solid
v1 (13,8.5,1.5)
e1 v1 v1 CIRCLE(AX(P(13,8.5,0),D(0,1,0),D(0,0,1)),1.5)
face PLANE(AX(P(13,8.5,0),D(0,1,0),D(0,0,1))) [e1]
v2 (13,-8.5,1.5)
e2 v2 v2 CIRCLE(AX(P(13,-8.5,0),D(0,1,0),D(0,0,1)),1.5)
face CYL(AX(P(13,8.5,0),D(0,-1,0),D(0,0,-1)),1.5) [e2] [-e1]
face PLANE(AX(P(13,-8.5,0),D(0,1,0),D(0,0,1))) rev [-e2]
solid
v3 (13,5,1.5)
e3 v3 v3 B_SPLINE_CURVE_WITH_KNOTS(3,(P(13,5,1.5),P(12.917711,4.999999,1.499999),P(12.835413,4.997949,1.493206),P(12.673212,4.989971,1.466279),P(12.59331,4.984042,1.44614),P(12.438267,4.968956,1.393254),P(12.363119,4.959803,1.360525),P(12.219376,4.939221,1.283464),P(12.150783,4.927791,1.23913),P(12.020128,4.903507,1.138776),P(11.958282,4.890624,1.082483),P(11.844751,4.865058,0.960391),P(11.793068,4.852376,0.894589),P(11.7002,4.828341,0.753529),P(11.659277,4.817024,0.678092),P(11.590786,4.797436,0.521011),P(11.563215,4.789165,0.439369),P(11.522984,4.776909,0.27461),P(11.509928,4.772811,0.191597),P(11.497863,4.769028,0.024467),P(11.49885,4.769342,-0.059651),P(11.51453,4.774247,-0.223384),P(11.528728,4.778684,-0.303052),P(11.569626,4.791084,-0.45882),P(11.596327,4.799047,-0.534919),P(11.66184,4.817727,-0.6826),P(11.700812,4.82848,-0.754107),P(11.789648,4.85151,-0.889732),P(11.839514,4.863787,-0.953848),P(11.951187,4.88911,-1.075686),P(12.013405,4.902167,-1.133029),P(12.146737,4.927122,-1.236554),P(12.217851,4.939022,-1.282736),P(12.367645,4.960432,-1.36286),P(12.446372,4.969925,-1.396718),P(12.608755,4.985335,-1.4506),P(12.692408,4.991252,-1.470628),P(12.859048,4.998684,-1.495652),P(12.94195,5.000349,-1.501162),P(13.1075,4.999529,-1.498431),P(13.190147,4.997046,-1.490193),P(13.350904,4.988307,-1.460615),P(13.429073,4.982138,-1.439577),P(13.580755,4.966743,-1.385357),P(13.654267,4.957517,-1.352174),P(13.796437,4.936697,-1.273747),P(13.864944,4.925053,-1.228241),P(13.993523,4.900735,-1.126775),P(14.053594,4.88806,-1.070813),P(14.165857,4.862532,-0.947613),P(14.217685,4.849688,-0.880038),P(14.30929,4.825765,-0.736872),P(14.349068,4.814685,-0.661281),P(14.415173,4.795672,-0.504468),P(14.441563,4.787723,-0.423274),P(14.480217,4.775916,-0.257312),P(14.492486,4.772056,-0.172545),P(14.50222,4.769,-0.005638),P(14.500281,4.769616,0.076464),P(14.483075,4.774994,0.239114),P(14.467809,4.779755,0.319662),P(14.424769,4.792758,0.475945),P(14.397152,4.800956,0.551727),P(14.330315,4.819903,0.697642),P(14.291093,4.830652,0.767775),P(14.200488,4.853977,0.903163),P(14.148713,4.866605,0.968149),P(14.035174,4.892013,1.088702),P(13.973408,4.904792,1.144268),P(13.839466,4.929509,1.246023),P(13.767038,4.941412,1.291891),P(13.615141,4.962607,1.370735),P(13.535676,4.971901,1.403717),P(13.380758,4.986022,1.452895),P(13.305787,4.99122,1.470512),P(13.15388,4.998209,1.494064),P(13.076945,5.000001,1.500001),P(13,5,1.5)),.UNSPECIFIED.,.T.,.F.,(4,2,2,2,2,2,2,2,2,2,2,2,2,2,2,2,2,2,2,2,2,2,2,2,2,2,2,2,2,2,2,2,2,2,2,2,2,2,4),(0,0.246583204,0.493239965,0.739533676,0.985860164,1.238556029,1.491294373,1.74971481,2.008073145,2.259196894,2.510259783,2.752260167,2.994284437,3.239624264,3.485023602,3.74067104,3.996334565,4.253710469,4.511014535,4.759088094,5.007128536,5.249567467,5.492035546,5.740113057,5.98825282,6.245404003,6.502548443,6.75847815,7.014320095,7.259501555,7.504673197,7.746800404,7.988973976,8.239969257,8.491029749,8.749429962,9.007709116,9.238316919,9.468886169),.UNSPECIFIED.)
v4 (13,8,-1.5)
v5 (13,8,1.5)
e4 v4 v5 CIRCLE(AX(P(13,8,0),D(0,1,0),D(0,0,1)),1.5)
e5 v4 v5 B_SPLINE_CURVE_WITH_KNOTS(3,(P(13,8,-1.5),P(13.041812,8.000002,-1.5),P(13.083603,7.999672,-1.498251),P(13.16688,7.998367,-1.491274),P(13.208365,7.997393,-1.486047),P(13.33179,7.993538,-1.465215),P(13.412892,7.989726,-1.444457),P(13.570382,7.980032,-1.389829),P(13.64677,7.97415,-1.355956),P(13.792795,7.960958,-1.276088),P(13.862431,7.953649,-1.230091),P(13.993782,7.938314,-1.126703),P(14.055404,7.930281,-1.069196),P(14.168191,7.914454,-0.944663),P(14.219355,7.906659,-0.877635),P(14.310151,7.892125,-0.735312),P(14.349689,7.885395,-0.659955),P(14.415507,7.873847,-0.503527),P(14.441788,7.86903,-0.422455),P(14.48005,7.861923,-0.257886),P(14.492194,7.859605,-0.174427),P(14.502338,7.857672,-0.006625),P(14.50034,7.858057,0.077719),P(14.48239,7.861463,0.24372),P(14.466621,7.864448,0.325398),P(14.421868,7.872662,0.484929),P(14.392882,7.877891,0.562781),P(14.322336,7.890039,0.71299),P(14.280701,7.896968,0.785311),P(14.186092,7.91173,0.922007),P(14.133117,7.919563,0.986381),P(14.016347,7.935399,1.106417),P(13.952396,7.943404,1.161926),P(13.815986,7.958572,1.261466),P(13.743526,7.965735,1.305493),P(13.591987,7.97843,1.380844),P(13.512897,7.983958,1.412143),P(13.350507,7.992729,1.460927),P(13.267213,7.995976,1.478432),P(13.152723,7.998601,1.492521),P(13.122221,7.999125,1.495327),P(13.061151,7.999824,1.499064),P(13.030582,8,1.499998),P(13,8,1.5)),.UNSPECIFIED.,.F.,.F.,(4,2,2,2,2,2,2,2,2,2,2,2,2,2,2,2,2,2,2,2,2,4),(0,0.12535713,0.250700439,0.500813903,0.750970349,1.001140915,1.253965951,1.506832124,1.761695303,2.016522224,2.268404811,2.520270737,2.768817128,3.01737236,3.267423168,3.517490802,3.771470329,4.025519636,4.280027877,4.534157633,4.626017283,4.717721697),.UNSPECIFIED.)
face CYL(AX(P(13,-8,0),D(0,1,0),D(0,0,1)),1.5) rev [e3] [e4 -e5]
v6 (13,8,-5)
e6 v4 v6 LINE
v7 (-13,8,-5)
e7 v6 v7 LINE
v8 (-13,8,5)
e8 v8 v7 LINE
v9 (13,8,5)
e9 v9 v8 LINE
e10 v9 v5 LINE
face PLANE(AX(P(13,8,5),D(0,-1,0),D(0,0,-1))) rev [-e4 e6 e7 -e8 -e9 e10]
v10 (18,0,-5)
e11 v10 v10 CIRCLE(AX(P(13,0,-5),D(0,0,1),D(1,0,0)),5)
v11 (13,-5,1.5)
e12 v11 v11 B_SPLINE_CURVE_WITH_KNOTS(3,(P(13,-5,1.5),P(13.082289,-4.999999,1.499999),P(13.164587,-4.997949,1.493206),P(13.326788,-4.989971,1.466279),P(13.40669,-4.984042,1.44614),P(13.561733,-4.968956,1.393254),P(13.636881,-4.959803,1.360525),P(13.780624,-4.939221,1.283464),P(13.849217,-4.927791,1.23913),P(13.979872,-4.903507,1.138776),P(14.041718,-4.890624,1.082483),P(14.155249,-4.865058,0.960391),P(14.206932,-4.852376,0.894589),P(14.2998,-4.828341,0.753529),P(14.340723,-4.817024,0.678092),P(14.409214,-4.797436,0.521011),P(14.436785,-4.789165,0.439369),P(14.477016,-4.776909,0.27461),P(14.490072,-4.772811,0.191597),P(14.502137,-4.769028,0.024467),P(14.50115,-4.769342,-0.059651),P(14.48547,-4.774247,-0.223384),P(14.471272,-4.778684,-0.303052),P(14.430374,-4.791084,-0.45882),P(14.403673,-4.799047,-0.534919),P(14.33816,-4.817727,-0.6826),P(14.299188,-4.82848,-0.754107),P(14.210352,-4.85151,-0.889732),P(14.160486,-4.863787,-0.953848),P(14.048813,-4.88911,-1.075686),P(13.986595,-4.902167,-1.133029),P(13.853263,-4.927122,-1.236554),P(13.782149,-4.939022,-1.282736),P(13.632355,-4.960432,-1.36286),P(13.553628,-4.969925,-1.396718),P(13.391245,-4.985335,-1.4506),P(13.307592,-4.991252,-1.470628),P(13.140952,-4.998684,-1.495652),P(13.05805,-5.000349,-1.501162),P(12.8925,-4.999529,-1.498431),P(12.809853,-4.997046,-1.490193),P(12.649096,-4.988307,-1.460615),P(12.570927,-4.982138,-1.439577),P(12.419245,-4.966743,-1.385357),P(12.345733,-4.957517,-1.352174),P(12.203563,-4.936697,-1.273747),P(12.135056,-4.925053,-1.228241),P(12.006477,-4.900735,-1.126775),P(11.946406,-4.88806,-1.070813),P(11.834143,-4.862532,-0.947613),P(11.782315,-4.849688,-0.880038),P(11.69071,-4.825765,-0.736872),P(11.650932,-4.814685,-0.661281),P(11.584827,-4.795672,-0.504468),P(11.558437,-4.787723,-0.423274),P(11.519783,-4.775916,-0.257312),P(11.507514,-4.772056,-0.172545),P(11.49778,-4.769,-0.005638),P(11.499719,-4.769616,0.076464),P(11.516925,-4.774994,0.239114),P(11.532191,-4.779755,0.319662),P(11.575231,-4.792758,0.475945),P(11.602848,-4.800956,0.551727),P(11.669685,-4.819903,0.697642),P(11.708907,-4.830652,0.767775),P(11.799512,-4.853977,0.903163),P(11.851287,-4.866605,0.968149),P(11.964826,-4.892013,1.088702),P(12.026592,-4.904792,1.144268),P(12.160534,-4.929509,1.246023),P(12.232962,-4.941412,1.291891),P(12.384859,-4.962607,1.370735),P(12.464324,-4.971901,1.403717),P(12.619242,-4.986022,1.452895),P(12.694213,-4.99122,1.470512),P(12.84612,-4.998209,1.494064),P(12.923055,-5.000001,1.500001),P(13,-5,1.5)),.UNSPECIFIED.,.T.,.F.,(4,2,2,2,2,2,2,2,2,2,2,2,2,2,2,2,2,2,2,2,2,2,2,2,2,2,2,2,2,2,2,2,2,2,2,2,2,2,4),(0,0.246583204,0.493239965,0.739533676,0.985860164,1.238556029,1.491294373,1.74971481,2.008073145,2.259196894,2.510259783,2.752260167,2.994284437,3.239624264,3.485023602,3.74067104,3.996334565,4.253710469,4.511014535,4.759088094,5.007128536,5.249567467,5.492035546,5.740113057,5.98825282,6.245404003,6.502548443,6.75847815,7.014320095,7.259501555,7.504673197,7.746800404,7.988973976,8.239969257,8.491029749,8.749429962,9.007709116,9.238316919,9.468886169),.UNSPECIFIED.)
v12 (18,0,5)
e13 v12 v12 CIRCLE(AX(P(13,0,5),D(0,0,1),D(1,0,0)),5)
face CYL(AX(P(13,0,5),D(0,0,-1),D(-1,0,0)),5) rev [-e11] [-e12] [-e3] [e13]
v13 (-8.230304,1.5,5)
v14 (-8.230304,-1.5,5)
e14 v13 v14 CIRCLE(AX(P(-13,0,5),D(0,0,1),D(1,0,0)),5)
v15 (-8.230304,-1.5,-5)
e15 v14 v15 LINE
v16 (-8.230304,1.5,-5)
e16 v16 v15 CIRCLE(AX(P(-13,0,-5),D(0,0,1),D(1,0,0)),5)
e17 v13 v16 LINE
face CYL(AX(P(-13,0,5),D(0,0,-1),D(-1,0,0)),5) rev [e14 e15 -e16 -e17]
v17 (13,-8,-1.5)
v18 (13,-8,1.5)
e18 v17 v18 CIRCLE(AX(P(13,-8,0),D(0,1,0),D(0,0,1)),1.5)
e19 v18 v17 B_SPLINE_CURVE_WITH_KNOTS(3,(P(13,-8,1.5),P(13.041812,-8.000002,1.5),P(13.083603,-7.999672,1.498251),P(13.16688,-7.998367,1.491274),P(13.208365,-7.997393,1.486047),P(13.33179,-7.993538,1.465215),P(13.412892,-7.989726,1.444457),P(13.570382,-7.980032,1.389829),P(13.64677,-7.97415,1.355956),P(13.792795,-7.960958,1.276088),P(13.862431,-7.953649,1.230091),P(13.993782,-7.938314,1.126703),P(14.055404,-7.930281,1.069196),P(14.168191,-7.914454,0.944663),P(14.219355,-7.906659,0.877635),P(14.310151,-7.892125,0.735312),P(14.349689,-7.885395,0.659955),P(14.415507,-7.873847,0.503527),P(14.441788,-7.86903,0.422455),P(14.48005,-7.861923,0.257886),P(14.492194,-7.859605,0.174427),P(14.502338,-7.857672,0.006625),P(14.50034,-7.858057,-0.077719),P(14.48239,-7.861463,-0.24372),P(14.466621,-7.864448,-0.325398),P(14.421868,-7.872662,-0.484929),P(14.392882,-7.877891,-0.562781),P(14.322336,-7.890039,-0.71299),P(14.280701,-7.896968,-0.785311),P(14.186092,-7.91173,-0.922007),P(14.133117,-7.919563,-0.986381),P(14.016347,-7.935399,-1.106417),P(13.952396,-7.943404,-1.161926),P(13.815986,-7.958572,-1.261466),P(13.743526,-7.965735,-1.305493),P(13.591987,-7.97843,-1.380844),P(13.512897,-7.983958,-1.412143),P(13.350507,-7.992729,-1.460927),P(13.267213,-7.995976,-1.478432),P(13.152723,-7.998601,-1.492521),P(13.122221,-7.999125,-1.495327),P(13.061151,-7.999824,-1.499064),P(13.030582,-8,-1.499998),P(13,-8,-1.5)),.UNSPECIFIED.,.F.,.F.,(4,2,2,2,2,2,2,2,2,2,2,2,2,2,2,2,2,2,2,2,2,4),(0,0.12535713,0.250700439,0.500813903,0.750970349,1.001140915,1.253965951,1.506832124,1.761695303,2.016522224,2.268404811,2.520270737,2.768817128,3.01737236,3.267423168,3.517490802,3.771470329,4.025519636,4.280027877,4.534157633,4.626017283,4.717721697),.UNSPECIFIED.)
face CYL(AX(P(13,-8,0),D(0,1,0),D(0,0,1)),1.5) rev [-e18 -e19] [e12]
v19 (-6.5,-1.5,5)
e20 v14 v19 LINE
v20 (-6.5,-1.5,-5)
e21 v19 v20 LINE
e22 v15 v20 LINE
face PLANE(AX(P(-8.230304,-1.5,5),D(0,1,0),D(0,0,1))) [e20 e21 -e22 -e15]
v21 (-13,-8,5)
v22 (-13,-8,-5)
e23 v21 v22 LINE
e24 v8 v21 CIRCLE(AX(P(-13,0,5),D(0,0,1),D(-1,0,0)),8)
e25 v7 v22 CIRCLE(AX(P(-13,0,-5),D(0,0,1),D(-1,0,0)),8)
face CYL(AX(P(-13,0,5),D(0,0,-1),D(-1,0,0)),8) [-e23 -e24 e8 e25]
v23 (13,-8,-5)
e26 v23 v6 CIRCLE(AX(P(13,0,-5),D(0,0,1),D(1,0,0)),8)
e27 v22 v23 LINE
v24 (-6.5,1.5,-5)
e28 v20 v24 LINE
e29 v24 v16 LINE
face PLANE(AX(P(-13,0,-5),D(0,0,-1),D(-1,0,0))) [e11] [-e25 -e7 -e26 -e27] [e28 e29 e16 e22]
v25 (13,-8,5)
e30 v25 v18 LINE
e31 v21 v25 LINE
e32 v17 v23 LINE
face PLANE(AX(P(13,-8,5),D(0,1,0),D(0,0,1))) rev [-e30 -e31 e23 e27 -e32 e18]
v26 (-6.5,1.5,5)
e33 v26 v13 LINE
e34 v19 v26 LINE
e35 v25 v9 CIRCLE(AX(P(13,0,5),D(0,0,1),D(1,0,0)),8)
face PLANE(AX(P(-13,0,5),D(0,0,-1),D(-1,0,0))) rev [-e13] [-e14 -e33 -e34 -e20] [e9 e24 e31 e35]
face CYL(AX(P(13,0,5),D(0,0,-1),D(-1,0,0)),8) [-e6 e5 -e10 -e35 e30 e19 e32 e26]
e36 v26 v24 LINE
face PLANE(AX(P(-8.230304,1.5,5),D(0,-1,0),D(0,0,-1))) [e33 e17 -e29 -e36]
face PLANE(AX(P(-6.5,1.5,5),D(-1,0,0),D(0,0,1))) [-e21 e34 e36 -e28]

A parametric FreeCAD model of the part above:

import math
import FreeCAD as App
import Part
import Sketcher

V = App.Vector

doc = App.newDocument("Part")
body = doc.addObject("PartDesign::Body", "Body")

sketch1 = doc.addObject("Sketcher::SketchObject", "Sketch")
body.addObject(sketch1)
sketch1.AttachmentSupport = (doc.XY_Plane, [""])
sketch1.MapMode = "FlatFace"
sketch1.addGeometry([
    Part.LineSegment(V(13, 8, 0), V(-13, 8, 0)),
    Part.ArcOfCircle(Part.Circle(V(-13, 0, 0), V(0, 0, 1), 8), math.radians(90), math.radians(270)),
    Part.LineSegment(V(-13, -8, 0), V(13, -8, 0)),
    Part.ArcOfCircle(Part.Circle(V(13, 0, 0), V(0, 0, 1), 8), math.radians(-90), math.radians(90)),
    Part.ArcOfCircle(Part.Circle(V(-13, 0, 0), V(0, 0, 1), 5), math.radians(17), math.radians(343)),
    Part.LineSegment(V(-8.2, 1.5, 0), V(-6.5, 1.5, 0)),
    Part.LineSegment(V(-6.5, 1.5, 0), V(-6.5, -1.5, 0)),
    Part.LineSegment(V(-6.5, -1.5, 0), V(-8.2, -1.5, 0)),
    Part.Circle(V(13, 0, 0), V(0, 0, 1), 5),
], False)
sketch1.addConstraint([
    Sketcher.Constraint("Tangent", 0, 2, 1, 1),
    Sketcher.Constraint("Tangent", 1, 2, 2, 1),
    Sketcher.Constraint("Tangent", 2, 2, 3, 1),
    Sketcher.Constraint("Tangent", 3, 2, 0, 1),
    Sketcher.Constraint("Coincident", 4, 1, 5, 1),
    Sketcher.Constraint("Coincident", 5, 2, 6, 1),
    Sketcher.Constraint("Coincident", 6, 2, 7, 1),
    Sketcher.Constraint("Coincident", 7, 2, 4, 2),
    Sketcher.Constraint("Horizontal", 0),
    Sketcher.Constraint("Horizontal", 2),
    Sketcher.Constraint("Horizontal", 5),
    Sketcher.Constraint("Vertical", 6),
    Sketcher.Constraint("Horizontal", 7),
    Sketcher.Constraint("Coincident", 4, 3, 1, 3),
    Sketcher.Constraint("Coincident", 8, 3, 3, 3),
    Sketcher.Constraint("Equal", 4, 8),
    Sketcher.Constraint("Symmetric", 1, 3, 3, 3, -1, 1),
    Sketcher.Constraint("Vertical", 4, 1, 7, 2),
    Sketcher.Constraint("Diameter", 8, 10.0),
    Sketcher.Constraint("Radius", 1, 8.0),
    Sketcher.Constraint("DistanceX", 0, 2, 0, 1, 26.0),
    Sketcher.Constraint("DistanceY", 6, 2, 6, 1, 3.0),
    Sketcher.Constraint("DistanceX", 5, 2, -1, 1, 6.5),
])
pad1 = doc.addObject("PartDesign::Pad", "Pad")
body.addObject(pad1)
pad1.Profile = sketch1
pad1.Length = 10
pad1.Midplane = True

sketch2 = doc.addObject("Sketcher::SketchObject", "Sketch001")
body.addObject(sketch2)
sketch2.AttachmentSupport = (doc.XZ_Plane, [""])
sketch2.MapMode = "FlatFace"
sketch2.addGeometry(Part.Circle(V(13, 0, 0), V(0, 0, 1), 1.5), False)
sketch2.addConstraint([
    Sketcher.Constraint("PointOnObject", 0, 3, -1),
    Sketcher.Constraint("Diameter", 0, 3.0),
    Sketcher.Constraint("DistanceX", -1, 1, 0, 3, 13.0),
])
pocket1 = doc.addObject("PartDesign::Pocket", "Pocket")
body.addObject(pocket1)
pocket1.Profile = sketch2
pocket1.Type = "ThroughAll"
pocket1.Midplane = True
body2 = doc.addObject("PartDesign::Body", "Body001")

sketch3 = doc.addObject("Sketcher::SketchObject", "Sketch002")
body2.addObject(sketch3)
sketch3.AttachmentSupport = (doc.getObject("XZ_Plane001"), [""])
sketch3.MapMode = "FlatFace"
sketch3.addGeometry(Part.Circle(V(13, 0, 0), V(0, 0, 1), 1.5), False)
sketch3.addConstraint([
    Sketcher.Constraint("PointOnObject", 0, 3, -1),
    Sketcher.Constraint("Diameter", 0, 3.0),
    Sketcher.Constraint("DistanceX", -1, 1, 0, 3, 13.0),
])
pad2 = doc.addObject("PartDesign::Pad", "Pad001")
body2.addObject(pad2)
pad2.Profile = sketch3
pad2.Length = 17
pad2.Midplane = True

doc.recompute()
